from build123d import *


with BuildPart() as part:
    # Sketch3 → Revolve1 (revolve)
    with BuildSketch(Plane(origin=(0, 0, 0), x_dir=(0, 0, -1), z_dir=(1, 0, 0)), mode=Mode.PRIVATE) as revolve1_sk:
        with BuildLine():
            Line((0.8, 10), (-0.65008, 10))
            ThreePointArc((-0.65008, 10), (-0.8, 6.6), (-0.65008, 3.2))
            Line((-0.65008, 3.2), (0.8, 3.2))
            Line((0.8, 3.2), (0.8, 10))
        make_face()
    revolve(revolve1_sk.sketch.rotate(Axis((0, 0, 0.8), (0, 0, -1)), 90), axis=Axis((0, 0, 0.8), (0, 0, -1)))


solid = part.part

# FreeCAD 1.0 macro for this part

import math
import FreeCAD as App
import Part
import Sketcher
from FreeCAD import Vector
Q = App.Units.Quantity

doc = App.newDocument("Part")
body = doc.addObject("PartDesign::Body", "Body")

sketch1 = body.newObject("Sketcher::SketchObject", "Sketch")
sketch1.AttachmentSupport = (doc.getObject("YZ_Plane"), [""])
sketch1.MapMode = "FlatFace"
sketch1.addGeometry([
    Part.LineSegment(Vector(10, -0.8, 0), Vector(10, 0.7, 0)),
    Part.ArcOfCircle(Part.Circle(Vector(6.6, -37.8, 0), Vector(0, 0, 1), 38.6), math.radians(84.95), math.radians(95.05)),
    Part.LineSegment(Vector(3.2, 0.7, 0), Vector(3.2, -0.8, 0)),
    Part.LineSegment(Vector(3.2, -0.8, 0), Vector(10, -0.8, 0)),
], False)
sketch1.addConstraint([
    Sketcher.Constraint("Coincident", 0, 2, 1, 1),
    Sketcher.Constraint("Coincident", 1, 2, 2, 1),
    Sketcher.Constraint("Coincident", 2, 2, 3, 1),
    Sketcher.Constraint("Coincident", 3, 2, 0, 1),
    Sketcher.Constraint("Vertical", 0),
    Sketcher.Constraint("Vertical", 2),
    Sketcher.Constraint("Horizontal", 3),
    Sketcher.Constraint("Horizontal", 0, 2, 1, 2),
    Sketcher.Constraint("DistanceX", 3, 1, 3, 2, Q("6.8 mm")),
    Sketcher.Constraint("DistanceX", -1, 1, 0, 2, Q("10 mm")),
    Sketcher.Constraint("DistanceY", 2, 2, -1, 1, Q("0.8 mm")),
    Sketcher.Constraint("Radius", 1, Q("38.628855 mm")),
    Sketcher.Constraint("DistanceY", 0, 1, 0, 2, Q("1.45008 mm")),
])
revolution = body.newObject("PartDesign::Revolution", "Revolution")
revolution.Profile = sketch1
revolution.ReferenceAxis = (sketch1, ["V_Axis"])
revolution.Angle = 360

doc.recompute()
